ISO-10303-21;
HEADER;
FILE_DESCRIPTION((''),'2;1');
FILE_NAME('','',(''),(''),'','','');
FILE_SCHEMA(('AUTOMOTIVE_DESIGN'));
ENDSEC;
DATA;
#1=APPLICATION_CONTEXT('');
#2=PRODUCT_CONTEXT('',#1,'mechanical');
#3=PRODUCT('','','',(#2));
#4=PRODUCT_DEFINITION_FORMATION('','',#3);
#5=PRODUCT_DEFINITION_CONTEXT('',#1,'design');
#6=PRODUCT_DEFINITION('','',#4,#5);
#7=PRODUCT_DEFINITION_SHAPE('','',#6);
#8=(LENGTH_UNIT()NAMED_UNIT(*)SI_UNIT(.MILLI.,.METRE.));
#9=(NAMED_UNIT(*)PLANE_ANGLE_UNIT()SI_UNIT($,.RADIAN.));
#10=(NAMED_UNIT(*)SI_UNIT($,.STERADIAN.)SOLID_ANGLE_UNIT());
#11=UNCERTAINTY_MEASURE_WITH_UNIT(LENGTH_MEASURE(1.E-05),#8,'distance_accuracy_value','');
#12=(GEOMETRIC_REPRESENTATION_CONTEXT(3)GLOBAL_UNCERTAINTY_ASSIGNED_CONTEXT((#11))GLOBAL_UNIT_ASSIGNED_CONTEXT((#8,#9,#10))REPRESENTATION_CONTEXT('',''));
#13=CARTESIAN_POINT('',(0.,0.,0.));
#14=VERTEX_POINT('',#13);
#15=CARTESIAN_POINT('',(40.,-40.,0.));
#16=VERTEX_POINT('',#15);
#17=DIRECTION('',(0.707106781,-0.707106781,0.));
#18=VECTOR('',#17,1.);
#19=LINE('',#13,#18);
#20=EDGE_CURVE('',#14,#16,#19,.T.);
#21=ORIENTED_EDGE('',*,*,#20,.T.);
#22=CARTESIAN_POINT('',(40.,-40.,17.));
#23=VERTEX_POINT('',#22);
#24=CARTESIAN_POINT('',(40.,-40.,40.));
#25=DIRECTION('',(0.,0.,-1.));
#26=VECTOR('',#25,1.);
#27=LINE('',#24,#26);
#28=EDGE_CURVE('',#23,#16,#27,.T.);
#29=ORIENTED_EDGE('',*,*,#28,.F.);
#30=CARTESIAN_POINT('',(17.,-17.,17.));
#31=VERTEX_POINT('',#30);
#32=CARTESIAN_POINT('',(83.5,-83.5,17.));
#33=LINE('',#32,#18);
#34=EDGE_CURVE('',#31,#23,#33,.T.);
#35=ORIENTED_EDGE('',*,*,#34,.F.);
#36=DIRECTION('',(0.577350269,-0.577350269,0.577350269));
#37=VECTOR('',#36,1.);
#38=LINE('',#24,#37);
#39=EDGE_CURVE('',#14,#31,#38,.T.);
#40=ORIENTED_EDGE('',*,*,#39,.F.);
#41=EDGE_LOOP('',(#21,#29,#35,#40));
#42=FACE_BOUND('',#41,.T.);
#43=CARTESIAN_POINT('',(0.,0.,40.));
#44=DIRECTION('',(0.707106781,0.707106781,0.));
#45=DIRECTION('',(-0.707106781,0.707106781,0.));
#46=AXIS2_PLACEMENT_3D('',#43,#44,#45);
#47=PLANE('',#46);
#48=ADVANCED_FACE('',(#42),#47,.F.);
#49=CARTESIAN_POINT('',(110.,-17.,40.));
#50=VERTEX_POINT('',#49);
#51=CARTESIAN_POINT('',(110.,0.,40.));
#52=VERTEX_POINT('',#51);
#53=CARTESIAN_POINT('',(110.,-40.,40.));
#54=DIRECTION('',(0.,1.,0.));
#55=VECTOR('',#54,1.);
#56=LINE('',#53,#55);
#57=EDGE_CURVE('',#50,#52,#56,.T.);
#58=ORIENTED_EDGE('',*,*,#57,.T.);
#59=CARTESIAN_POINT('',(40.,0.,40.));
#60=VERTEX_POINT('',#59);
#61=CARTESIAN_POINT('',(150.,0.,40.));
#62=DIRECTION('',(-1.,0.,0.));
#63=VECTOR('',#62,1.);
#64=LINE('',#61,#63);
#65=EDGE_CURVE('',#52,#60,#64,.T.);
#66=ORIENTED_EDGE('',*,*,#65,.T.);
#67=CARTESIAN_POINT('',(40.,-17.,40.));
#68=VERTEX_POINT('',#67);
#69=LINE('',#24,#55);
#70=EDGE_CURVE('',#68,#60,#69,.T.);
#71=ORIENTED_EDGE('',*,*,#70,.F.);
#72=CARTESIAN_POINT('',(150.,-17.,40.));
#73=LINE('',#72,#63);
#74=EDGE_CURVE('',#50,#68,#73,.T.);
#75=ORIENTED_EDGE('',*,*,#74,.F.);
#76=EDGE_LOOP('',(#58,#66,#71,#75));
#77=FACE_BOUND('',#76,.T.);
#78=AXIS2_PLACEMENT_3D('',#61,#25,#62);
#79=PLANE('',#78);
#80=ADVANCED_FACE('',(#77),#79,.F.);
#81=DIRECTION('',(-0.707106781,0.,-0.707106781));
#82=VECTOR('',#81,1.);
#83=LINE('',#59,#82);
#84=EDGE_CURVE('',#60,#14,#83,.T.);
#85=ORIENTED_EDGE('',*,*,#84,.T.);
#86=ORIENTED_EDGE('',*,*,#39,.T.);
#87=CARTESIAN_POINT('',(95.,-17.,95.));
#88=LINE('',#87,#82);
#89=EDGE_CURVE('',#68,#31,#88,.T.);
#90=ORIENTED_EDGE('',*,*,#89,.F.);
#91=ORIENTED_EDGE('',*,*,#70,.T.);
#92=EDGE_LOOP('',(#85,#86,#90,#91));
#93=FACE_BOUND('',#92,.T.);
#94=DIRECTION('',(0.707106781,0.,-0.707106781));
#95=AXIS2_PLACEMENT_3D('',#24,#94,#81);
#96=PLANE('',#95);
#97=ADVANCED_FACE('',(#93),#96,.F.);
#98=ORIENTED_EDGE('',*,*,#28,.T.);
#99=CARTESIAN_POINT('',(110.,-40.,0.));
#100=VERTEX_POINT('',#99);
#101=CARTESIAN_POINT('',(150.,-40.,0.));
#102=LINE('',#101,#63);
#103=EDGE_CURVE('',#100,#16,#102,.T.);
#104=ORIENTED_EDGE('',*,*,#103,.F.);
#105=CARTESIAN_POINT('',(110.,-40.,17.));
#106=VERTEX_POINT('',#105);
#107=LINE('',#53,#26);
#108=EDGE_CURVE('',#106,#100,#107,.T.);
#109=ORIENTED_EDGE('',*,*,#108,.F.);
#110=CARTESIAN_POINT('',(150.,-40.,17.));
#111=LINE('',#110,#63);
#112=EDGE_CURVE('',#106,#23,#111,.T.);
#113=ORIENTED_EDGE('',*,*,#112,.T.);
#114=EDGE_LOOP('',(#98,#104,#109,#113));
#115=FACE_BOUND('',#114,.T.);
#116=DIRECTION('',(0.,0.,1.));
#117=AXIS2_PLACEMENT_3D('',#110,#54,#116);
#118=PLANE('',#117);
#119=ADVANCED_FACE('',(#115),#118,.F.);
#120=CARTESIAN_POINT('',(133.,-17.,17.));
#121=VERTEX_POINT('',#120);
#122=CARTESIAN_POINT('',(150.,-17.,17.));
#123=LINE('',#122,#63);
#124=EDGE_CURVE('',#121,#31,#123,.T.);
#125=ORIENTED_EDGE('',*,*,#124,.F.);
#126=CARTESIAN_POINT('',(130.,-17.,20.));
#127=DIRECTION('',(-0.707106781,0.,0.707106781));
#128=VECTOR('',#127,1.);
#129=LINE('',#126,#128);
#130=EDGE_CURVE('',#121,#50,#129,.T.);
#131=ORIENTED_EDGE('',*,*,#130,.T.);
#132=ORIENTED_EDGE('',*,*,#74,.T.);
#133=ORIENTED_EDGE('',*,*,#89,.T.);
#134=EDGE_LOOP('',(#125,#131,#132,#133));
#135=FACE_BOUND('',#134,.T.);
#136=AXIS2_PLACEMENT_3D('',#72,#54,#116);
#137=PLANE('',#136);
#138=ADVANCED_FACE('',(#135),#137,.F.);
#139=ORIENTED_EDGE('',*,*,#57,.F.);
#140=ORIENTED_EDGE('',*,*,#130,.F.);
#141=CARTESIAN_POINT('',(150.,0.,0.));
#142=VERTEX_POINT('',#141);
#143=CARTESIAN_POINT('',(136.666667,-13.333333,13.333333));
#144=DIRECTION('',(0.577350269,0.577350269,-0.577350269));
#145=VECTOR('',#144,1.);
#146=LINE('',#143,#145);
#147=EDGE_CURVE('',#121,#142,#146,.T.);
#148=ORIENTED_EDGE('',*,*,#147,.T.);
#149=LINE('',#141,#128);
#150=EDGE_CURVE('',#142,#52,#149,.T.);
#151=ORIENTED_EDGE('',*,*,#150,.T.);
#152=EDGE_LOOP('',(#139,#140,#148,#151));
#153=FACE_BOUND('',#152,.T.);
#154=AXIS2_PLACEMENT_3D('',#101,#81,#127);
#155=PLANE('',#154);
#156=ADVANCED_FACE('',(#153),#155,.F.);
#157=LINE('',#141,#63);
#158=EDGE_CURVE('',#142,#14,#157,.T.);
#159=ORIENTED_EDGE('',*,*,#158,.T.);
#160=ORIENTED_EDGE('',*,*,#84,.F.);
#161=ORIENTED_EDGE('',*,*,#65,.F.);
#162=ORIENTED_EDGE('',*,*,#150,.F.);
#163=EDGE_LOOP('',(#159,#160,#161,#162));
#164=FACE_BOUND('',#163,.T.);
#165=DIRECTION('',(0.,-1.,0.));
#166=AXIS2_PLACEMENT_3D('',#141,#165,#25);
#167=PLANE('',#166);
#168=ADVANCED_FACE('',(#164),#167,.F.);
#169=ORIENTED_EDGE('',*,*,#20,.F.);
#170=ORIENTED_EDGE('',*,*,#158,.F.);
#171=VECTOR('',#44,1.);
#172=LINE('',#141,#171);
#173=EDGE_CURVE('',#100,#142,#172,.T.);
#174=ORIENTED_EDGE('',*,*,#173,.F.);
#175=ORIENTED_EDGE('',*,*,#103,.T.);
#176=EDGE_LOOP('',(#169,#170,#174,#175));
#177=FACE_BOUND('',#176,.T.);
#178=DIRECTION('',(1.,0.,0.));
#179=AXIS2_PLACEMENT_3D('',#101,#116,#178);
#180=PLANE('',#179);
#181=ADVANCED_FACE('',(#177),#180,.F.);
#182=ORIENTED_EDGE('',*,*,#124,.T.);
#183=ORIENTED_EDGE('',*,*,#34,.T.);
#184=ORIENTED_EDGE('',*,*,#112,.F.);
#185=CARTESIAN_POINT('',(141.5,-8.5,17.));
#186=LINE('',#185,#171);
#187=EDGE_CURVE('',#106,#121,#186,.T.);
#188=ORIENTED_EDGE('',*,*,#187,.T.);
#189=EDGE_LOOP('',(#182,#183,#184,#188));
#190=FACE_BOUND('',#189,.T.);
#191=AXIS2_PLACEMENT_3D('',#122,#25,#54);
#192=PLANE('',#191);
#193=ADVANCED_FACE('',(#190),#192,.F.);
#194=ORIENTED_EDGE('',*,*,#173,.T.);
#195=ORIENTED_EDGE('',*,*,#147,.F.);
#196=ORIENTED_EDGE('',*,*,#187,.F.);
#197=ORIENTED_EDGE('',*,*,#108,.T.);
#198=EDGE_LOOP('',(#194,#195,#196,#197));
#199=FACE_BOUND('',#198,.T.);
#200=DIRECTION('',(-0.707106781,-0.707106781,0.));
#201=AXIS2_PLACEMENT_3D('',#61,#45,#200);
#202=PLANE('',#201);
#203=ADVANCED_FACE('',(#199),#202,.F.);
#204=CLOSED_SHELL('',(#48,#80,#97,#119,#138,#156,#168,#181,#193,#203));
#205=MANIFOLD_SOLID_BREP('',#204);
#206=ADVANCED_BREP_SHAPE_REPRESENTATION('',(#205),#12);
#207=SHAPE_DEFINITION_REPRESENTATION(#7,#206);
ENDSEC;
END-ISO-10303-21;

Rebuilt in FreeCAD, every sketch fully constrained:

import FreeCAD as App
import Part
import Sketcher
from FreeCAD import Vector
Q = App.Units.Quantity


def add_polygon(sketch, points):
    """Adds a closed chain of lines whose ends are joined by coincident constraints."""
    first, n = sketch.GeometryCount, len(points)
    for a, b in zip(points, points[1:] + points[:1]):
        sketch.addGeometry(Part.LineSegment(App.Vector(*a, 0), App.Vector(*b, 0)), False)
    for i in range(n):
        sketch.addConstraint(Sketcher.Constraint("Coincident", first + i, 2, first + (i + 1) % n, 1))

doc = App.newDocument("Part")
body = doc.addObject("PartDesign::Body", "Body")

sketch1 = body.newObject("Sketcher::SketchObject", "Sketch")
sketch1.AttachmentSupport = (doc.getObject("YZ_Plane"), [""])
sketch1.MapMode = "FlatFace"
add_polygon(sketch1, [(0, 0), (0, 40), (-17, 40), (-17, 17), (-40, 17), (-40, 0)])
sketch1.addConstraint([
    Sketcher.Constraint("Vertical", 0),
    Sketcher.Constraint("Horizontal", 1),
    Sketcher.Constraint("Vertical", 2),
    Sketcher.Constraint("Horizontal", 3),
    Sketcher.Constraint("Vertical", 4),
    Sketcher.Constraint("Horizontal", 5),
    Sketcher.Constraint("Coincident", 5, 2, -1, 1),
    Sketcher.Constraint("Equal", 5, 0),
    Sketcher.Constraint("Equal", 3, 2),
    Sketcher.Constraint("DistanceX", 1, 2, 1, 1, Q("17 mm")),
    Sketcher.Constraint("DistanceX", 3, 2, 3, 1, Q("23 mm")),
])
pad1 = body.newObject("PartDesign::Pad", "Pad")
pad1.Profile = sketch1
pad1.Length = 150

sketch2 = body.newObject("Sketcher::SketchObject", "Sketch001")
sketch2.AttachmentSupport = (doc.getObject("XZ_Plane"), [""])
sketch2.MapMode = "FlatFace"
add_polygon(sketch2, [(150, 0), (110, 40), (150, 40)])
add_polygon(sketch2, [(0, 0), (0, 40), (40, 40)])
sketch2.addConstraint([
    Sketcher.Constraint("Horizontal", 1),
    Sketcher.Constraint("Vertical", 2),
    Sketcher.Constraint("Vertical", 3),
    Sketcher.Constraint("Horizontal", 4),
    Sketcher.Constraint("Coincident", 5, 2, -1, 1),
    Sketcher.Constraint("PointOnObject", 2, 2, -1),
    Sketcher.Constraint("Perpendicular", 0, 5),
    Sketcher.Constraint("Horizontal", 1, 2, 3, 2),
    Sketcher.Constraint("Equal", 1, 4),
    Sketcher.Constraint("DistanceX", 1, 1, 1, 2, Q("40 mm")),
    Sketcher.Constraint("DistanceX", -1, 1, 0, 2, Q("110 mm")),
])
pocket1 = body.newObject("PartDesign::Pocket", "Pocket")
pocket1.Profile = sketch2
pocket1.Type = "ThroughAll"
pocket1.Reversed = True

sketch3 = body.newObject("Sketcher::SketchObject", "Sketch002")
sketch3.AttachmentSupport = (doc.getObject("XY_Plane"), [""])
sketch3.MapMode = "FlatFace"
add_polygon(sketch3, [(110, -40), (150, 0), (150, -40)])
add_polygon(sketch3, [(40, -40), (0, -40), (0, 0)])
sketch3.addConstraint([
    Sketcher.Constraint("Vertical", 1),
    Sketcher.Constraint("Horizontal", 2),
    Sketcher.Constraint("Horizontal", 3),
    Sketcher.Constraint("Vertical", 4),
    Sketcher.Constraint("Coincident", 4, 2, -1, 1),
    Sketcher.Constraint("PointOnObject", 0, 2, -1),
    Sketcher.Constraint("Perpendicular", 0, 5),
    Sketcher.Constraint("Horizontal", 2, 2, 3, 2),
    Sketcher.Constraint("Equal", 2, 3),
    Sketcher.Constraint("DistanceX", 2, 2, 2, 1, Q("40 mm")),
    Sketcher.Constraint("DistanceX", -1, 1, 0, 2, Q("150 mm")),
])
pocket2 = body.newObject("PartDesign::Pocket", "Pocket001")
pocket2.Profile = sketch3
pocket2.Type = "ThroughAll"
pocket2.Reversed = True

doc.recompute()
